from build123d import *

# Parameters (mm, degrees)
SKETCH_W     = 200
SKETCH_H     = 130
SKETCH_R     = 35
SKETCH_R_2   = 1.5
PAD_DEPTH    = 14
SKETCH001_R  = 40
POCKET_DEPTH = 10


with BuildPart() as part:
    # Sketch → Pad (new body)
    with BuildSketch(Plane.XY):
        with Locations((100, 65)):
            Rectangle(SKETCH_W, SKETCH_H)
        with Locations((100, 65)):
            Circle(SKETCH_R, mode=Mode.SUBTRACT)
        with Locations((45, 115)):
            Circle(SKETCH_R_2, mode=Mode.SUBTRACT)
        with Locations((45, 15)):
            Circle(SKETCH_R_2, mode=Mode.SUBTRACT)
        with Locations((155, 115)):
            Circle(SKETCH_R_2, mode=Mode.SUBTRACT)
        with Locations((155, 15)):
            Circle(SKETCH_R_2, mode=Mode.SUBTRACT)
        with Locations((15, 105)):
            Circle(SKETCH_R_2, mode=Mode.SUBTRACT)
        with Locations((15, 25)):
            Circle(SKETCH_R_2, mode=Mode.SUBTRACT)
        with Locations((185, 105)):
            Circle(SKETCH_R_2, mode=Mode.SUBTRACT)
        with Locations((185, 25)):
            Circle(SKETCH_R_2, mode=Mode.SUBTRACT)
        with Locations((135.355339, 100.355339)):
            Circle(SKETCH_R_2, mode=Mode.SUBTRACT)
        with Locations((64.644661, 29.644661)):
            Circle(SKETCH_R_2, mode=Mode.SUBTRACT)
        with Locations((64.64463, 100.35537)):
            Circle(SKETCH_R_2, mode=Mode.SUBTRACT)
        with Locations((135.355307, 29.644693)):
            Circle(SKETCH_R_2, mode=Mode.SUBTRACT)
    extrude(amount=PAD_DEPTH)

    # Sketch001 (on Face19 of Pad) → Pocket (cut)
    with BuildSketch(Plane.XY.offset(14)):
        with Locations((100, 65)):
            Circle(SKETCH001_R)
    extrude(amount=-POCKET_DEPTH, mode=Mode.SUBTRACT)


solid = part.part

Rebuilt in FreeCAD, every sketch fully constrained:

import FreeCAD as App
import Part
import Sketcher

doc = App.newDocument("Part")
body = doc.addObject("PartDesign::Body", "Body")

sketch1 = body.newObject("Sketcher::SketchObject", "Sketch")
sketch1.AttachmentSupport = (doc.getObject("XY_Plane"), [""])
sketch1.MapMode = "FlatFace"
sketch1.addGeometry([
    Part.LineSegment(App.Vector(0, 130, 0), App.Vector(0, 0, 0)),
    Part.LineSegment(App.Vector(0, 0, 0), App.Vector(200, 0, 0)),
    Part.LineSegment(App.Vector(200, 0, 0), App.Vector(200, 130, 0)),
    Part.LineSegment(App.Vector(200, 130, 0), App.Vector(0, 130, 0)),
    Part.Circle(App.Vector(15, 25, 0), App.Vector(0, 0, 1), 1.5),
    Part.Circle(App.Vector(45, 15, 0), App.Vector(0, 0, 1), 1.5),
    Part.Circle(App.Vector(64.6, 29.6, 0), App.Vector(0, 0, 1), 1.5),
    Part.Circle(App.Vector(135.4, 29.6, 0), App.Vector(0, 0, 1), 1.5),
    Part.Circle(App.Vector(155, 15, 0), App.Vector(0, 0, 1), 1.5),
    Part.Circle(App.Vector(185, 25, 0), App.Vector(0, 0, 1), 1.5),
    Part.Circle(App.Vector(100, 65, 0), App.Vector(0, 0, 1), 35),
    Part.Circle(App.Vector(15, 105, 0), App.Vector(0, 0, 1), 1.5),
    Part.Circle(App.Vector(45, 115, 0), App.Vector(0, 0, 1), 1.5),
    Part.Circle(App.Vector(64.6, 100.4, 0), App.Vector(0, 0, 1), 1.5),
    Part.Circle(App.Vector(135.4, 100.4, 0), App.Vector(0, 0, 1), 1.5),
    Part.Circle(App.Vector(155, 115, 0), App.Vector(0, 0, 1), 1.5),
    Part.Circle(App.Vector(185, 105, 0), App.Vector(0, 0, 1), 1.5),
], False)
sketch1.addConstraint([
    Sketcher.Constraint("Coincident", 0, 2, 1, 1),
    Sketcher.Constraint("Coincident", 1, 2, 2, 1),
    Sketcher.Constraint("Coincident", 2, 2, 3, 1),
    Sketcher.Constraint("Coincident", 3, 2, 0, 1),
    Sketcher.Constraint("Vertical", 0),
    Sketcher.Constraint("Horizontal", 1),
    Sketcher.Constraint("Vertical", 2),
    Sketcher.Constraint("Horizontal", 3),
    Sketcher.Constraint("Coincident", 0, 2, -1, 1),
    Sketcher.Constraint("Equal", 4, 5),
    Sketcher.Constraint("Equal", 5, 6),
    Sketcher.Constraint("Equal", 6, 7),
    Sketcher.Constraint("Equal", 7, 8),
    Sketcher.Constraint("Equal", 8, 9),
    Sketcher.Constraint("Equal", 9, 11),
    Sketcher.Constraint("Equal", 11, 12),
    Sketcher.Constraint("Equal", 12, 13),
    Sketcher.Constraint("Equal", 13, 14),
    Sketcher.Constraint("Equal", 14, 15),
    Sketcher.Constraint("Equal", 15, 16),
    Sketcher.Constraint("Horizontal", 5, 3, 8, 3),
    Sketcher.Constraint("Horizontal", 4, 3, 9, 3),
    Sketcher.Constraint("Horizontal", 12, 3, 15, 3),
    Sketcher.Constraint("Horizontal", 11, 3, 16, 3),
    Sketcher.Constraint("Vertical", 4, 3, 11, 3),
    Sketcher.Constraint("Vertical", 5, 3, 12, 3),
    Sketcher.Constraint("Vertical", 8, 3, 15, 3),
    Sketcher.Constraint("Vertical", 9, 3, 16, 3),
    Sketcher.Constraint("Diameter", 4, 3.0),
    Sketcher.Constraint("Diameter", 10, 70.0),
    Sketcher.Constraint("DistanceX", 1, 1, 1, 2, 200.0),
    Sketcher.Constraint("DistanceY", 0, 2, 0, 1, 130.0),
    Sketcher.Constraint("DistanceX", -1, 1, 4, 3, 15.0),
    Sketcher.Constraint("DistanceY", -1, 1, 4, 3, 25.0),
    Sketcher.Constraint("DistanceX", -1, 1, 5, 3, 45.0),
    Sketcher.Constraint("DistanceY", -1, 1, 5, 3, 15.0),
    Sketcher.Constraint("DistanceX", -1, 1, 8, 3, 155.0),
    Sketcher.Constraint("DistanceX", -1, 1, 9, 3, 185.0),
    Sketcher.Constraint("DistanceX", -1, 1, 10, 3, 100.0),
    Sketcher.Constraint("DistanceY", -1, 1, 10, 3, 65.0),
    Sketcher.Constraint("DistanceY", -1, 1, 11, 3, 105.0),
    Sketcher.Constraint("DistanceY", -1, 1, 12, 3, 115.0),
    Sketcher.Constraint("DistanceX", -1, 1, 6, 3, 64.644661),
    Sketcher.Constraint("DistanceY", -1, 1, 6, 3, 29.644661),
    Sketcher.Constraint("DistanceX", -1, 1, 13, 3, 64.64463),
    Sketcher.Constraint("DistanceY", -1, 1, 13, 3, 100.35537),
    Sketcher.Constraint("DistanceX", -1, 1, 14, 3, 135.355339),
    Sketcher.Constraint("DistanceY", -1, 1, 14, 3, 100.355339),
    Sketcher.Constraint("DistanceX", -1, 1, 7, 3, 135.355307),
    Sketcher.Constraint("DistanceY", -1, 1, 7, 3, 29.644693),
])
pad1 = body.newObject("PartDesign::Pad", "Pad")
pad1.Profile = sketch1
pad1.Length = 14

sketch2 = body.newObject("Sketcher::SketchObject", "Sketch001")
sketch2.AttachmentSupport = (doc.getObject("XY_Plane"), [""])
sketch2.MapMode = "FlatFace"
sketch2.AttachmentOffset = App.Placement(App.Vector(0, 0, 14), App.Rotation())
sketch2.addGeometry(Part.Circle(App.Vector(100, 65, 0), App.Vector(0, 0, 1), 40), False)
sketch2.addConstraint([
    Sketcher.Constraint("Diameter", 0, 80.0),
    Sketcher.Constraint("DistanceX", -1, 1, 0, 3, 100.0),
    Sketcher.Constraint("DistanceY", -1, 1, 0, 3, 65.0),
])
pocket1 = body.newObject("PartDesign::Pocket", "Pocket")
pocket1.Profile = sketch2
pocket1.Length = 10

doc.recompute()
